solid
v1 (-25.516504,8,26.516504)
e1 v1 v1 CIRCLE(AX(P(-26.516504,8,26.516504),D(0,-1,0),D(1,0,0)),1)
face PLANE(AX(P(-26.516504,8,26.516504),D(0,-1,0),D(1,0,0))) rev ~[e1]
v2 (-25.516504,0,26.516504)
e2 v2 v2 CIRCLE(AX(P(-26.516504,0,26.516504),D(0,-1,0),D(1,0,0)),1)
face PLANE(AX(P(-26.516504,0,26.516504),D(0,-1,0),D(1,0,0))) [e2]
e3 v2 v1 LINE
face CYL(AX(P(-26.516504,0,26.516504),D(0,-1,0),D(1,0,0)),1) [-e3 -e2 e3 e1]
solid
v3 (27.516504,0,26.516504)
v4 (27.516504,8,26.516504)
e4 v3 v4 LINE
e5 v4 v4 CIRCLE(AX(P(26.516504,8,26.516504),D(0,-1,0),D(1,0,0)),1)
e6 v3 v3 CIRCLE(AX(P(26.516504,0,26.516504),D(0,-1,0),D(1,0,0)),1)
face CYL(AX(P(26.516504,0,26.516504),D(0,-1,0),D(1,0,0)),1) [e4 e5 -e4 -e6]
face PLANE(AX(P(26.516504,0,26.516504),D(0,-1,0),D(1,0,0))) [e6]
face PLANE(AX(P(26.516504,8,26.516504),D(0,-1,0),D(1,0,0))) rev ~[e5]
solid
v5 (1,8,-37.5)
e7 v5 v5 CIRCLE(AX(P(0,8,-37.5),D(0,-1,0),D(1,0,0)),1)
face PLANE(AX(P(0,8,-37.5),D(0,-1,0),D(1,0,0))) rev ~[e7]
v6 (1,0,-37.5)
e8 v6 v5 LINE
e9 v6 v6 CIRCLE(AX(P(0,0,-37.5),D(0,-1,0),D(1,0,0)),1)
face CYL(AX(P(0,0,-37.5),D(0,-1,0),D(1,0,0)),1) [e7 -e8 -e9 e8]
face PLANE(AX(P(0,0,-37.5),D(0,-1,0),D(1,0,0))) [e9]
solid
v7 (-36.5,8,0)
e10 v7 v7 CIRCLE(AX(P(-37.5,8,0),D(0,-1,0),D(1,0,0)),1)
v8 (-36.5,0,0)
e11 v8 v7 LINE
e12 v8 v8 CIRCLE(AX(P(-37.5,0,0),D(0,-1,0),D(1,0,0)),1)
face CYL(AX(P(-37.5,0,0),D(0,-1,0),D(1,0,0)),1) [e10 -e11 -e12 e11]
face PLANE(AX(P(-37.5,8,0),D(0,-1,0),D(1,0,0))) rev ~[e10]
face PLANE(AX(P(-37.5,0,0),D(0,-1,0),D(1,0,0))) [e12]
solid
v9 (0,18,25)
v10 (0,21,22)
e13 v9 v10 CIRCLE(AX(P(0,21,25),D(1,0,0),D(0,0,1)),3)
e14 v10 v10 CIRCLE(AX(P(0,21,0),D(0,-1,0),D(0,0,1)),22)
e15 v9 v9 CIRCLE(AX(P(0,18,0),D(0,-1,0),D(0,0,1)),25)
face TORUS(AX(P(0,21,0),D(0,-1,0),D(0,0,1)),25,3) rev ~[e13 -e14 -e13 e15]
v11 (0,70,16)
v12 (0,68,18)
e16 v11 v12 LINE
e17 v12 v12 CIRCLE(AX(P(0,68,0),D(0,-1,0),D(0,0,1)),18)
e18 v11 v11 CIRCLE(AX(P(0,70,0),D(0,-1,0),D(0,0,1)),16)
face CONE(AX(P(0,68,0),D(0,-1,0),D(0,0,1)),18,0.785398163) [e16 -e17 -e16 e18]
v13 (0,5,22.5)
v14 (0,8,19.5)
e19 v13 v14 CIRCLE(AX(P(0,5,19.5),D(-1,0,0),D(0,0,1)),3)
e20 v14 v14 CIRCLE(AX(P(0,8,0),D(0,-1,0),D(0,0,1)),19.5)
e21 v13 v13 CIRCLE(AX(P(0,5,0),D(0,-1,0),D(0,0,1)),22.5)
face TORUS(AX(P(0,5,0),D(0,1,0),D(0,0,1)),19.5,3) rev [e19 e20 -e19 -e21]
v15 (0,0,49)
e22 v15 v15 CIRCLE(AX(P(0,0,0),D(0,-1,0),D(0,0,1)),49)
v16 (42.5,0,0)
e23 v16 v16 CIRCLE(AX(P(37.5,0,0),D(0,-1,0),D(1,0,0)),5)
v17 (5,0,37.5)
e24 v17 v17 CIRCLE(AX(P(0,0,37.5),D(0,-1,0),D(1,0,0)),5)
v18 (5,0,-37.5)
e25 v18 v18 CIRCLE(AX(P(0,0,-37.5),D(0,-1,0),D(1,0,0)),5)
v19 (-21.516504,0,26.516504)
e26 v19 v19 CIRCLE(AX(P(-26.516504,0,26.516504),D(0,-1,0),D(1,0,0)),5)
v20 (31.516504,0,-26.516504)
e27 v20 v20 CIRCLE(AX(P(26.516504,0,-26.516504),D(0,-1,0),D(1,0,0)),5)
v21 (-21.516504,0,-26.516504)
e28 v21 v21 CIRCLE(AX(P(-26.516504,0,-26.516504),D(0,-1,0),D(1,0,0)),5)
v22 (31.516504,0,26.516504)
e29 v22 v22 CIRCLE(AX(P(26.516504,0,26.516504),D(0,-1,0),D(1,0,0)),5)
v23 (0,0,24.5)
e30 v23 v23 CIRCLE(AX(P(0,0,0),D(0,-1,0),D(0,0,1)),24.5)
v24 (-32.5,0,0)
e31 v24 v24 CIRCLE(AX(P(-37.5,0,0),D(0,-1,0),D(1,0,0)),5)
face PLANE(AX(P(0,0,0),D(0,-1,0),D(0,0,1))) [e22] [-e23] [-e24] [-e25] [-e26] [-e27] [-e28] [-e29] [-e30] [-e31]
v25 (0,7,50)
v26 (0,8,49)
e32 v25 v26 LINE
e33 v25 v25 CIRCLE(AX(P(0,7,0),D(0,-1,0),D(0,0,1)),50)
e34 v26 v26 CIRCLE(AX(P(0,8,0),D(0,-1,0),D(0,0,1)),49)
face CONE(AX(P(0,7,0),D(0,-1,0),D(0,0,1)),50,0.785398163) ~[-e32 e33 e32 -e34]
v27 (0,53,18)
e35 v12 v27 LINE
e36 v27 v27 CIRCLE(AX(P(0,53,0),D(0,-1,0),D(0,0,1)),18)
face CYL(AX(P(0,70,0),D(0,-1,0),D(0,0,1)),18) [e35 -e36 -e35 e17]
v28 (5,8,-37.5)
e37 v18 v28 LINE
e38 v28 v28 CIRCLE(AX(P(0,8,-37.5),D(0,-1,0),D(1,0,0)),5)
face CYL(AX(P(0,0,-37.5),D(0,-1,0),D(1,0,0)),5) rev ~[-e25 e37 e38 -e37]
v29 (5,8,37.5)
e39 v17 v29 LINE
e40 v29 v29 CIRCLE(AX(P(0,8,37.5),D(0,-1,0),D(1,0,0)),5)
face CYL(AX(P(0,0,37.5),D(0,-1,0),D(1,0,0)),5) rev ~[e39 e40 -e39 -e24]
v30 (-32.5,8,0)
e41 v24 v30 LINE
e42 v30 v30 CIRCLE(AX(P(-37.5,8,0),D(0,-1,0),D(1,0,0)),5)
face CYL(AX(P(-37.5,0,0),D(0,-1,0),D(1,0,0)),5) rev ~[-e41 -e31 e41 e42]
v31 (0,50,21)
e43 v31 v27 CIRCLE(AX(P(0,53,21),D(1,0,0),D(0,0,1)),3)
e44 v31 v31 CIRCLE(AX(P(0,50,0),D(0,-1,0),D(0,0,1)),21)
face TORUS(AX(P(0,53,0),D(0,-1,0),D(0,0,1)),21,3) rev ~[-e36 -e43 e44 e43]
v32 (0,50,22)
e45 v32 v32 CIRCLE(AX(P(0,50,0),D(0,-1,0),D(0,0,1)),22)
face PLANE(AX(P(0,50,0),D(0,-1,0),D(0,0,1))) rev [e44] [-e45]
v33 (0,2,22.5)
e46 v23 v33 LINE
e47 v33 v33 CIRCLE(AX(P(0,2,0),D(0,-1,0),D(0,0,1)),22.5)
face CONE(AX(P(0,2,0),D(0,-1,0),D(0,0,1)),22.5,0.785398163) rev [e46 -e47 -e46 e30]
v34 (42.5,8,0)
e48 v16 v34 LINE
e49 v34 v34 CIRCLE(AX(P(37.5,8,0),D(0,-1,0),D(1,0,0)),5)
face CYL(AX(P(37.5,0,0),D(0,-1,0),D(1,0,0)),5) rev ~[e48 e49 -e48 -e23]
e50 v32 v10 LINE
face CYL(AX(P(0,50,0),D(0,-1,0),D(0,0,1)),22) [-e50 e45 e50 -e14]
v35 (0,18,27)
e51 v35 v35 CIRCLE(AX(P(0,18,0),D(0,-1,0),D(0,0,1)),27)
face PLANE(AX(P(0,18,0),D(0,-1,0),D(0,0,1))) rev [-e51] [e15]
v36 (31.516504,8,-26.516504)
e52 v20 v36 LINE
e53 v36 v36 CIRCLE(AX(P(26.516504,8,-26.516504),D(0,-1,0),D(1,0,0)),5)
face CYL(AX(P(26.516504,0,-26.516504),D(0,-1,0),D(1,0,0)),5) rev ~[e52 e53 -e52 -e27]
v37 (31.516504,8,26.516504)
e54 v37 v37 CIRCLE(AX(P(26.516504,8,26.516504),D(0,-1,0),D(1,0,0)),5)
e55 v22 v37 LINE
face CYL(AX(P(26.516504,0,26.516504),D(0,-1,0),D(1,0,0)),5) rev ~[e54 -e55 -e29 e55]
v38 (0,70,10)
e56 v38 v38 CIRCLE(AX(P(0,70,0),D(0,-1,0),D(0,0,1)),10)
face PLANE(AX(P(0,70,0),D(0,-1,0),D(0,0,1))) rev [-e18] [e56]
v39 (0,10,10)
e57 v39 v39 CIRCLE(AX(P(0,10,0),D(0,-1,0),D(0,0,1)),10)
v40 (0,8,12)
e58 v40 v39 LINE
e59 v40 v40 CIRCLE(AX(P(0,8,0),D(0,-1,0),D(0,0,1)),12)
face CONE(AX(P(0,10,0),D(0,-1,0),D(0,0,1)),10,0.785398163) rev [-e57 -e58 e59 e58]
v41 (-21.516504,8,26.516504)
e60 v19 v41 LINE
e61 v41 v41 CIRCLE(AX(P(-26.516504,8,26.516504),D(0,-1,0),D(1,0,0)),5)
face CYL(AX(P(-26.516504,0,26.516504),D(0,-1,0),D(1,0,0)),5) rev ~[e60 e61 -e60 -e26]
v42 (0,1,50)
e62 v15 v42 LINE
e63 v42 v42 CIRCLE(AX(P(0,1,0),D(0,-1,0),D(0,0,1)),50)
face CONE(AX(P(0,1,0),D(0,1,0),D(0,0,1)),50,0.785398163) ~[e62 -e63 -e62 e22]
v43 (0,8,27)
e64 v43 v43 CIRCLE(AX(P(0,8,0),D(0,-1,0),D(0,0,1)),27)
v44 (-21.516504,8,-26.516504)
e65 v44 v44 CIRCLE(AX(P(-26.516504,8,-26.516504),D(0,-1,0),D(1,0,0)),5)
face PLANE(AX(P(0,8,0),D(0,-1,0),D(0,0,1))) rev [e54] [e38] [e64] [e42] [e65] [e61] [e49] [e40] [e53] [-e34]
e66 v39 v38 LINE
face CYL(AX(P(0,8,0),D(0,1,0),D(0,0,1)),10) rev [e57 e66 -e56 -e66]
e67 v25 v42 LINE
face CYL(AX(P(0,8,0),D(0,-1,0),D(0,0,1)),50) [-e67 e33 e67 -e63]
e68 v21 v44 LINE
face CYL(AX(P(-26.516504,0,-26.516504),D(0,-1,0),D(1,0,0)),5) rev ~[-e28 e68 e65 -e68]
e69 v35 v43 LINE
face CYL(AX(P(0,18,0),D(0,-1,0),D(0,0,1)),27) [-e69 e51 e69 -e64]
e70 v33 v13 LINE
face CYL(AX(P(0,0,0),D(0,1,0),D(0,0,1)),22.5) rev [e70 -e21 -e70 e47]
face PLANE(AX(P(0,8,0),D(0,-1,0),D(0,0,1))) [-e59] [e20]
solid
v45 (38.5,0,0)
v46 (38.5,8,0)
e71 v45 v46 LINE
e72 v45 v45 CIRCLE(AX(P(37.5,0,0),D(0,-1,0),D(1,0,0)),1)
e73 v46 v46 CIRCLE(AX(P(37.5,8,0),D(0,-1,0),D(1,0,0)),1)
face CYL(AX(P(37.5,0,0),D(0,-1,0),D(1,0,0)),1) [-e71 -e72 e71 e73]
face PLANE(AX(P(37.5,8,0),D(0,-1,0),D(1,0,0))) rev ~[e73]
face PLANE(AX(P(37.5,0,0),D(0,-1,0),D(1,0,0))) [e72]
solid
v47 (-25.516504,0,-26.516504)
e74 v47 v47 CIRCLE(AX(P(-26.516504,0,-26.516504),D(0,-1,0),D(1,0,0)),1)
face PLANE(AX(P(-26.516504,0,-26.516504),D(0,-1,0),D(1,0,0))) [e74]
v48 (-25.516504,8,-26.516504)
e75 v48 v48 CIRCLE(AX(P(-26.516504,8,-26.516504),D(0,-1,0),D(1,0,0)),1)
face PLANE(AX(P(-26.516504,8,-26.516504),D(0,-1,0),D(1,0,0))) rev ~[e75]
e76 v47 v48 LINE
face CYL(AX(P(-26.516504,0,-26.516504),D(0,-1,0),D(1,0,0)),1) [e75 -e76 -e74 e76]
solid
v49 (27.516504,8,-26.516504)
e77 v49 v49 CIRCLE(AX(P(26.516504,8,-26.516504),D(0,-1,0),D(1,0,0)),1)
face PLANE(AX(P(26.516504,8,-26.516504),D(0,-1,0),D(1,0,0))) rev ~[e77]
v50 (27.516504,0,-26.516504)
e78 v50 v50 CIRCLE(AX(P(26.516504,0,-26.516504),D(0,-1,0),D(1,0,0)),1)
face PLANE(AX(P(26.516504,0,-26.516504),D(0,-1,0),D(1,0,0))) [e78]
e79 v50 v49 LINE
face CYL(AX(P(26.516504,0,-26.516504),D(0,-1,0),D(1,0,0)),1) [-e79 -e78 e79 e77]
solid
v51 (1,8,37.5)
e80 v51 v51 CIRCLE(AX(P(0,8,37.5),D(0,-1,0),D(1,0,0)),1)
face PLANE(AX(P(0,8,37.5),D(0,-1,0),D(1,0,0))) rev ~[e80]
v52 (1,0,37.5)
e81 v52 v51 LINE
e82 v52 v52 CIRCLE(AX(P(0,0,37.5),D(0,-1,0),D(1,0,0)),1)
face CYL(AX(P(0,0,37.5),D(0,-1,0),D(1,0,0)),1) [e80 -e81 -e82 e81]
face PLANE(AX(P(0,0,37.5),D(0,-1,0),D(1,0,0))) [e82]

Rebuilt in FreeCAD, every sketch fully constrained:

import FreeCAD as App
import Part
import Sketcher
Q = App.Units.Quantity


def edges_at(feature, points):
    """Names of the edges that pass closest to the given points."""
    edges = feature.Shape.Edges
    near = lambda p: min(range(len(edges)), key=lambda i: edges[i].distToShape(Part.Vertex(*p))[0])
    return sorted({f"Edge{near(p) + 1}" for p in points})


def add_polygon(sketch, points):
    """Adds a closed chain of lines whose ends are joined by coincident constraints."""
    first, n = sketch.GeometryCount, len(points)
    for a, b in zip(points, points[1:] + points[:1]):
        sketch.addGeometry(Part.LineSegment(App.Vector(*a, 0), App.Vector(*b, 0)), False)
    for i in range(n):
        sketch.addConstraint(Sketcher.Constraint("Coincident", first + i, 2, first + (i + 1) % n, 1))

doc = App.newDocument("Part")
body = doc.addObject("PartDesign::Body", "Body")

# Sketch on YZ plane
sketch1 = doc.addObject("Sketcher::SketchObject", "Sketch")
body.addObject(sketch1)
sketch1.AttachmentSupport = (doc.YZ_Plane, [""])
sketch1.MapMode = "FlatFace"
add_polygon(sketch1, [(0, 50), (0, 22.5), (8, 22.5), (8, 10), (70, 10), (70, 18), (50, 18), (50, 22), (18, 22), (18, 27), (8, 27), (8, 50)])  # lines 0-11
sketch1.addConstraint([
    Sketcher.Constraint("Vertical", 0),
    Sketcher.Constraint("Horizontal", 1),
    Sketcher.Constraint("Vertical", 2),
    Sketcher.Constraint("Horizontal", 3),
    Sketcher.Constraint("Vertical", 4),
    Sketcher.Constraint("Horizontal", 5),
    Sketcher.Constraint("Vertical", 6),
    Sketcher.Constraint("Horizontal", 7),
    Sketcher.Constraint("Vertical", 8),
    Sketcher.Constraint("Horizontal", 9),
    Sketcher.Constraint("Vertical", 10),
    Sketcher.Constraint("Horizontal", 11),
    Sketcher.Constraint("PointOnObject", 0, 2, -2),
    Sketcher.Constraint("Vertical", 2, 2, 9, 2),
    Sketcher.Constraint("Equal", 11, 4),
    Sketcher.Constraint("DistanceX", 1, 1, 1, 2, Q("8 mm")),
    Sketcher.Constraint("DistanceX", 3, 1, 3, 2, Q("62 mm")),
    Sketcher.Constraint("DistanceX", 5, 2, 5, 1, Q("20 mm")),
    Sketcher.Constraint("DistanceX", 7, 2, 7, 1, Q("32 mm")),
    Sketcher.Constraint("DistanceY", 6, 1, 6, 2, Q("4 mm")),
    Sketcher.Constraint("DistanceY", 8, 1, 8, 2, Q("5 mm")),
    Sketcher.Constraint("DistanceY", 10, 1, 10, 2, Q("23 mm")),
    Sketcher.Constraint("DistanceY", 0, 2, 0, 1, Q("27.5 mm")),
    Sketcher.Constraint("DistanceY", -1, 1, 2, 2, Q("10 mm")),
])
revolution = doc.addObject("PartDesign::Revolution", "Revolution")
body.addObject(revolution)
revolution.Profile = sketch1
revolution.ReferenceAxis = (sketch1, ["H_Axis"])
revolution.Angle = 360

# Sketch on XZ plane
sketch2 = doc.addObject("Sketcher::SketchObject", "Sketch001")
body.addObject(sketch2)
sketch2.AttachmentSupport = (doc.XZ_Plane, [""])
sketch2.MapMode = "FlatFace"
sketch2.addGeometry([
    Part.Circle(App.Vector(0, -38, 0), App.Vector(0, 0, 1), 5),  # 0
    Part.Circle(App.Vector(27, -27, 0), App.Vector(0, 0, 1), 5),  # 1
    Part.Circle(App.Vector(38, 0, 0), App.Vector(0, 0, 1), 5),  # 2
    Part.Circle(App.Vector(27, 27, 0), App.Vector(0, 0, 1), 5),  # 3
    Part.Circle(App.Vector(0, 38, 0), App.Vector(0, 0, 1), 5),  # 4
    Part.Circle(App.Vector(-27, 27, 0), App.Vector(0, 0, 1), 5),  # 5
    Part.Circle(App.Vector(-38, 0, 0), App.Vector(0, 0, 1), 5),  # 6
    Part.Circle(App.Vector(-27, -27, 0), App.Vector(0, 0, 1), 5),  # 7
], False)
sketch2.addConstraint([
    Sketcher.Constraint("Equal", 0, 1),
    Sketcher.Constraint("Equal", 1, 2),
    Sketcher.Constraint("Equal", 2, 3),
    Sketcher.Constraint("Equal", 3, 4),
    Sketcher.Constraint("Equal", 4, 5),
    Sketcher.Constraint("Equal", 5, 6),
    Sketcher.Constraint("Equal", 6, 7),
    Sketcher.Constraint("Symmetric", 0, 3, 4, 3, -1, 1),
    Sketcher.Constraint("Symmetric", 1, 3, 5, 3, -1, 1),
    Sketcher.Constraint("Symmetric", 2, 3, 6, 3, -1, 1),
    Sketcher.Constraint("Symmetric", 3, 3, 7, 3, -1, 1),
    Sketcher.Constraint("Symmetric", 3, 3, 5, 3, -2),
    Sketcher.Constraint("PointOnObject", 0, 3, -2),
    Sketcher.Constraint("PointOnObject", 2, 3, -1),
    Sketcher.Constraint("Diameter", 0, Q("10 mm")),
    Sketcher.Constraint("DistanceY", 0, 3, 4, 3, Q("75 mm")),
    Sketcher.Constraint("DistanceX", -1, 1, 2, 3, Q("37.5 mm")),
    Sketcher.Constraint("DistanceY", 1, 3, 3, 3, Q("53.033008 mm")),
    Sketcher.Constraint("DistanceX", 5, 3, 3, 3, Q("53.033008 mm")),
])
pocket1 = doc.addObject("PartDesign::Pocket", "Pocket")
body.addObject(pocket1)
pocket1.Profile = sketch2
pocket1.Type = "ThroughAll"
doc.recompute()

chamfer = doc.addObject("PartDesign::Chamfer", "Chamfer")
body.addObject(chamfer)
chamfer.Base = (pocket1, edges_at(pocket1, [(0, 0, -22.5), (0, 8, -10), (0, 70, -18)]))
chamfer.Size = 2
doc.recompute()

fillet = doc.addObject("PartDesign::Fillet", "Fillet")
body.addObject(fillet)
fillet.Base = (chamfer, edges_at(chamfer, [(0, 8, -22.5), (0, 50, -18), (0, 18, -22)]))
fillet.Radius = 3
doc.recompute()

chamfer2 = doc.addObject("PartDesign::Chamfer", "Chamfer001")
body.addObject(chamfer2)
chamfer2.Base = (fillet, edges_at(fillet, [(0, 0, -50), (0, 8, -50)]))
chamfer2.Size = 1
body2 = doc.addObject("PartDesign::Body", "Body001")
body2.AllowCompound = True

# Sketch on XZ plane
sketch3 = doc.addObject("Sketcher::SketchObject", "Sketch002")
body2.addObject(sketch3)
sketch3.AttachmentSupport = (doc.getObject("XZ_Plane001"), [""])
sketch3.MapMode = "FlatFace"
sketch3.addGeometry([
    Part.Circle(App.Vector(0, 37.5, 0), App.Vector(0, 0, 1), 1),  # 0
    Part.Circle(App.Vector(-26.5, 26.5, 0), App.Vector(0, 0, 1), 1),  # 1
    Part.Circle(App.Vector(-37.5, 0, 0), App.Vector(0, 0, 1), 1),  # 2
    Part.Circle(App.Vector(-26.5, -26.5, 0), App.Vector(0, 0, 1), 1),  # 3
    Part.Circle(App.Vector(0, -37.5, 0), App.Vector(0, 0, 1), 1),  # 4
    Part.Circle(App.Vector(26.5, -26.5, 0), App.Vector(0, 0, 1), 1),  # 5
    Part.Circle(App.Vector(37.5, 0, 0), App.Vector(0, 0, 1), 1),  # 6
    Part.Circle(App.Vector(26.5, 26.5, 0), App.Vector(0, 0, 1), 1),  # 7
], False)
sketch3.addConstraint([
    Sketcher.Constraint("Equal", 0, 1),
    Sketcher.Constraint("Equal", 1, 2),
    Sketcher.Constraint("Equal", 2, 3),
    Sketcher.Constraint("Equal", 3, 4),
    Sketcher.Constraint("Equal", 4, 5),
    Sketcher.Constraint("Equal", 5, 6),
    Sketcher.Constraint("Equal", 6, 7),
    Sketcher.Constraint("Symmetric", 0, 3, 4, 3, -1, 1),
    Sketcher.Constraint("Symmetric", 1, 3, 5, 3, -1, 1),
    Sketcher.Constraint("Symmetric", 2, 3, 6, 3, -1, 1),
    Sketcher.Constraint("Symmetric", 3, 3, 7, 3, -1, 1),
    Sketcher.Constraint("Symmetric", 3, 3, 5, 3, -2),
    Sketcher.Constraint("PointOnObject", 0, 3, -2),
    Sketcher.Constraint("PointOnObject", 2, 3, -1),
    Sketcher.Constraint("Diameter", 0, Q("2 mm")),
    Sketcher.Constraint("DistanceY", 4, 3, 0, 3, Q("75 mm")),
    Sketcher.Constraint("DistanceX", 2, 3, -1, 1, Q("37.5 mm")),
    Sketcher.Constraint("DistanceY", 3, 3, 1, 3, Q("53.033008 mm")),
    Sketcher.Constraint("DistanceX", 3, 3, 5, 3, Q("53.033008 mm")),
])
pad1 = doc.addObject("PartDesign::Pad", "Pad")
body2.addObject(pad1)
pad1.Profile = sketch3
pad1.Length = 8
pad1.Reversed = True

doc.recompute()
